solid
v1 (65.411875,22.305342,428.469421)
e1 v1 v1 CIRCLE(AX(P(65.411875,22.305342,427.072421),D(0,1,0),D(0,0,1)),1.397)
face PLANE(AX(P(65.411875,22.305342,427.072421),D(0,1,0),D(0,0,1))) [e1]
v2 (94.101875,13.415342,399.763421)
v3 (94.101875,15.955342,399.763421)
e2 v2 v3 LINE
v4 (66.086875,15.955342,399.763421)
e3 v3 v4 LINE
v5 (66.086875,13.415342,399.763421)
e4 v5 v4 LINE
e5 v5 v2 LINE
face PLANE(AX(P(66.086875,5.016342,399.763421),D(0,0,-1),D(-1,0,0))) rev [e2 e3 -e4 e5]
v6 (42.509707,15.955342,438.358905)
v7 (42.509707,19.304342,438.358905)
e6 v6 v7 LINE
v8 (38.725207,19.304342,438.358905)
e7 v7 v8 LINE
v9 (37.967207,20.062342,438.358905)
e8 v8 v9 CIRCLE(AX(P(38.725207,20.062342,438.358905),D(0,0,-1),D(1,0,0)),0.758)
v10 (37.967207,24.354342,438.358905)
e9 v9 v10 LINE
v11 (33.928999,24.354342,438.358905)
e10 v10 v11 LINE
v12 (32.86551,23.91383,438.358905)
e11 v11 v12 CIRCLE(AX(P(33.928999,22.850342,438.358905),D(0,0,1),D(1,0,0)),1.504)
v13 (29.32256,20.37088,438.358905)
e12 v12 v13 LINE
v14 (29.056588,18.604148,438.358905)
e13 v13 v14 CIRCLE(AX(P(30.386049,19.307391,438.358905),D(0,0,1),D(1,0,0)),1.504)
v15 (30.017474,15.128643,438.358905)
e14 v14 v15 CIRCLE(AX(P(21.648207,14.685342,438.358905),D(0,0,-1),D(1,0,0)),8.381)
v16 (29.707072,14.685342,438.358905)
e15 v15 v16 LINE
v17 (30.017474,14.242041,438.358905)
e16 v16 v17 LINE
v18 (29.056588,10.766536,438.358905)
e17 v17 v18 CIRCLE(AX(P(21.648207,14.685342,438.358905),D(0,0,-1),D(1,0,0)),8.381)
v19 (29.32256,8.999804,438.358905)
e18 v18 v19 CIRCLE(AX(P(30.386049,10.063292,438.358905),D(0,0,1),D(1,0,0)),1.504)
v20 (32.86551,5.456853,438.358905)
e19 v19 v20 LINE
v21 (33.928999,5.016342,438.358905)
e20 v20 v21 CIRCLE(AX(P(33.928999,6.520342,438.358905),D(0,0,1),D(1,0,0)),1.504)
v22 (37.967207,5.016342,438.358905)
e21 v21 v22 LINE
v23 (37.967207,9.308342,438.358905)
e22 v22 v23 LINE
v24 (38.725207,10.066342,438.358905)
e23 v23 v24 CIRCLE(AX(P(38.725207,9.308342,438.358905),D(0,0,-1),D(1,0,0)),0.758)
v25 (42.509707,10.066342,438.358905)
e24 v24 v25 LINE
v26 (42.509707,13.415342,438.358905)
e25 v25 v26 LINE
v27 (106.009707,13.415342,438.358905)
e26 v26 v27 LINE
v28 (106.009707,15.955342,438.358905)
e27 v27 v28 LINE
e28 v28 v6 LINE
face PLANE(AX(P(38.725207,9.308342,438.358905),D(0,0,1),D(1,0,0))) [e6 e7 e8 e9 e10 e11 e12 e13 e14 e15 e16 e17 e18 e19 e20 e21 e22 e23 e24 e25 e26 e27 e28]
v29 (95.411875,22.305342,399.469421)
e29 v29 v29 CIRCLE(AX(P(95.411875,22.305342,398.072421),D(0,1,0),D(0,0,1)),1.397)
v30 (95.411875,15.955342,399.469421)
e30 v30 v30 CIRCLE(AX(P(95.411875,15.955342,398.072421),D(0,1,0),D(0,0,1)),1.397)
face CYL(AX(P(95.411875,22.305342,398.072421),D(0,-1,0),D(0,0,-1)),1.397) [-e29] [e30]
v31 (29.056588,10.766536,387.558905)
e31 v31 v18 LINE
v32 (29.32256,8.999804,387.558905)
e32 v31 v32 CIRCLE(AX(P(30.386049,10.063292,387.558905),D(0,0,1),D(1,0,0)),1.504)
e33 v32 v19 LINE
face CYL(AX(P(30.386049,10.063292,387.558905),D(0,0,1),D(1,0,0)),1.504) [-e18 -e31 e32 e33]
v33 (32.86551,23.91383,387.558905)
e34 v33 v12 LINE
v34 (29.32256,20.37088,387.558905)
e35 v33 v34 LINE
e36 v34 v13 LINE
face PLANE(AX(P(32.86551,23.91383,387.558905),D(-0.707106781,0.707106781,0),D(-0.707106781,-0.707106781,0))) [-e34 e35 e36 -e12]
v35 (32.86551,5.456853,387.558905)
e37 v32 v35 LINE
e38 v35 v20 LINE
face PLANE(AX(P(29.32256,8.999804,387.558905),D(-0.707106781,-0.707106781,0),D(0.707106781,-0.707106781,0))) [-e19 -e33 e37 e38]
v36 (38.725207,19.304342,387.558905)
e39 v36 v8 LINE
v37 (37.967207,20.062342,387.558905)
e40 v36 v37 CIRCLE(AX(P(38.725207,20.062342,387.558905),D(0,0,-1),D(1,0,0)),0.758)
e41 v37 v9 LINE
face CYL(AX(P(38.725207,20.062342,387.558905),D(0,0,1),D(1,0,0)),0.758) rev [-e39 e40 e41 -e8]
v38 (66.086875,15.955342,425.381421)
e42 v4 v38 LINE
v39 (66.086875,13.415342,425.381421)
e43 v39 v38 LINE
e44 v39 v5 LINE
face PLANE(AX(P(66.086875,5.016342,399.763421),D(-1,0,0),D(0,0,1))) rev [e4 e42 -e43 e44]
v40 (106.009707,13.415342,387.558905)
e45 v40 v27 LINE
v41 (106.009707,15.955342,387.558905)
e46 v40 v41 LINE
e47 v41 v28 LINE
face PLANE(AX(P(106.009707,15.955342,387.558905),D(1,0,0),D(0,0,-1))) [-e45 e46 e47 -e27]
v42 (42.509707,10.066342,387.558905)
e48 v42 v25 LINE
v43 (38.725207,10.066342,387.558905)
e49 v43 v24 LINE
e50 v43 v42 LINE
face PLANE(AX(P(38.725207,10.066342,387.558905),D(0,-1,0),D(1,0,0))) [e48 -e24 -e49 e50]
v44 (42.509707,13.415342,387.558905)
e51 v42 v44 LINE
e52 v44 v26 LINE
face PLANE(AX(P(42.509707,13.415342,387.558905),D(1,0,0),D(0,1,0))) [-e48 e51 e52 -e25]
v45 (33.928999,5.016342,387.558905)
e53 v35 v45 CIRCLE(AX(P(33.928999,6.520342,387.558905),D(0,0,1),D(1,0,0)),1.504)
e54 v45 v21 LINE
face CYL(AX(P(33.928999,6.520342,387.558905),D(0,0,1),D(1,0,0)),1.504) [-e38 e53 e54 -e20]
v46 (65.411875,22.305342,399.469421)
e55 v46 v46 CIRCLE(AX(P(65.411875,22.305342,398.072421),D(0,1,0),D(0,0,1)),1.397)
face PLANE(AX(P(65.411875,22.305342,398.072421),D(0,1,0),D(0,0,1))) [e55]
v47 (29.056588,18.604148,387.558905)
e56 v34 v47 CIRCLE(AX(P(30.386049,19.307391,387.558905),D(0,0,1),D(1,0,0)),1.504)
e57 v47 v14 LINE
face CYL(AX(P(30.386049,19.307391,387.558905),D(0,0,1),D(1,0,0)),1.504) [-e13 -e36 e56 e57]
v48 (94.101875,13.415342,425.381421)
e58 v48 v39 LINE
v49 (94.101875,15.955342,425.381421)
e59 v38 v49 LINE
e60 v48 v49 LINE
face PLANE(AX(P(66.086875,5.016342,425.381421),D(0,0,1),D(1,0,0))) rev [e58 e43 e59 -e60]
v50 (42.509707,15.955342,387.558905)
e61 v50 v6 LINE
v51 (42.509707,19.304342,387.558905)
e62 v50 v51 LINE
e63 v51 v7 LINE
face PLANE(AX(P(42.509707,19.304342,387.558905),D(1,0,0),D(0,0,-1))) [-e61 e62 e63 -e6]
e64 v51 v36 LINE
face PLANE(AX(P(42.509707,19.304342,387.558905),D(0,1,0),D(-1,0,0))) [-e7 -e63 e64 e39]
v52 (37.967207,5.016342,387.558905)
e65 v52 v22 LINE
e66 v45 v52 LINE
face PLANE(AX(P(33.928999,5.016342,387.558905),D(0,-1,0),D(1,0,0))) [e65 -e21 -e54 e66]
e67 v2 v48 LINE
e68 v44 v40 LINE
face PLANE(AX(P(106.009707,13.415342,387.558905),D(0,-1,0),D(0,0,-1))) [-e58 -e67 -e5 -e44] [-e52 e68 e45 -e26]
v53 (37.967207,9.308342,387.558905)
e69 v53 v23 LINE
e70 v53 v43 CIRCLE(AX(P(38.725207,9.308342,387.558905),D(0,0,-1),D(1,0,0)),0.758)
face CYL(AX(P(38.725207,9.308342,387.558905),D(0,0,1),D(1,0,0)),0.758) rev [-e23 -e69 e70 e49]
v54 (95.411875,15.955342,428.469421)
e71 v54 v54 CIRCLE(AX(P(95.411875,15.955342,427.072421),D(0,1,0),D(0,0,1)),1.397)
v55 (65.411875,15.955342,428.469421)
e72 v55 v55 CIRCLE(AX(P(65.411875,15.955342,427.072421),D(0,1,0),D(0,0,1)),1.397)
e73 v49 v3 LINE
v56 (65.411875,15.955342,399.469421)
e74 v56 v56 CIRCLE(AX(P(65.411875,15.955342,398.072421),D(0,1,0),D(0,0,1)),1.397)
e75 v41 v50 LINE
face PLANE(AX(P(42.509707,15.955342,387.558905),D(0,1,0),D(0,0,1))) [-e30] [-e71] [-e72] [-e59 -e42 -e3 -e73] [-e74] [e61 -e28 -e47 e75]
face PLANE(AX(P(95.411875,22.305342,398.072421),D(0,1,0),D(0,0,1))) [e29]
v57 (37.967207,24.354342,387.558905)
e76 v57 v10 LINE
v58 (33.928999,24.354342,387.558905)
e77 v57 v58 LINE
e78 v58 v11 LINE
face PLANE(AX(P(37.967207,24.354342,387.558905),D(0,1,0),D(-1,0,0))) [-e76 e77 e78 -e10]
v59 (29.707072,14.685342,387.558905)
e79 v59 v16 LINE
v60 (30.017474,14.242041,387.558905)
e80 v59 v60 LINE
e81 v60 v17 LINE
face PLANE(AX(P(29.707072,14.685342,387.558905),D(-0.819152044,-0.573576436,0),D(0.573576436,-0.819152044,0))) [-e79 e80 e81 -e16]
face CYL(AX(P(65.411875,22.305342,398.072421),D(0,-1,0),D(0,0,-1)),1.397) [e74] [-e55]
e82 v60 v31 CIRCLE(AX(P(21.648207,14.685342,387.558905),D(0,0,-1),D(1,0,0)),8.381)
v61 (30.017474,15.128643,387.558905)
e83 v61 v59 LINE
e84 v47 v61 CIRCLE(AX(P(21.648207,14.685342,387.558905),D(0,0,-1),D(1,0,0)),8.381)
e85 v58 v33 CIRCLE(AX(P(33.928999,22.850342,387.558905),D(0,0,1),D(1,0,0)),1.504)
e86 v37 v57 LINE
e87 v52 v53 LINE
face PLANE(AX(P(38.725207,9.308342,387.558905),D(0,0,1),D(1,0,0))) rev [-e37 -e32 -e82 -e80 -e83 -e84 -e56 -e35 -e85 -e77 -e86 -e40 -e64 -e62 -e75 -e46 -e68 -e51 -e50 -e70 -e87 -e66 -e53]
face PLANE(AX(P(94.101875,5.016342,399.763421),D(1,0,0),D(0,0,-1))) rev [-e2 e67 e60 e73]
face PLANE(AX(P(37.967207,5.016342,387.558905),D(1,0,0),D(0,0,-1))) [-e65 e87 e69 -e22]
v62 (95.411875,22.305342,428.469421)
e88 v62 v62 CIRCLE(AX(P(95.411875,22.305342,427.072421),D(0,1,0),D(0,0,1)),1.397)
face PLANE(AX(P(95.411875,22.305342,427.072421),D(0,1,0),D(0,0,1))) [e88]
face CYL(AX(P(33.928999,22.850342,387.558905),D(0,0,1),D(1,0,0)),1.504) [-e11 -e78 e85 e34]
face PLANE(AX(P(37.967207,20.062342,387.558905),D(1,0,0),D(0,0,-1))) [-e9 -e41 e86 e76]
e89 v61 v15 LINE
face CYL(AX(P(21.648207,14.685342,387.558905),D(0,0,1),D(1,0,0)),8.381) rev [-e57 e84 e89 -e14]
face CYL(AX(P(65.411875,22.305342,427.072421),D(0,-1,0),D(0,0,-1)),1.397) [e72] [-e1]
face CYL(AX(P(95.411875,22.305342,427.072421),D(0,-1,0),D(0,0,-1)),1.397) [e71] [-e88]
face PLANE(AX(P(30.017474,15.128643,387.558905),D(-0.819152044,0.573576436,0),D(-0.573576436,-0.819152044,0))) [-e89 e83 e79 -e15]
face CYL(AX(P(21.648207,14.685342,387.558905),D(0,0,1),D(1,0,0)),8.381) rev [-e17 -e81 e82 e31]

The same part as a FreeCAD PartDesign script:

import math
import FreeCAD as App
import Part
import Sketcher
from FreeCAD import Vector
Q = App.Units.Quantity


def add_polygon(sketch, points):
    """Adds a closed chain of lines whose ends are joined by coincident constraints."""
    first, n = sketch.GeometryCount, len(points)
    for a, b in zip(points, points[1:] + points[:1]):
        sketch.addGeometry(Part.LineSegment(App.Vector(*a, 0), App.Vector(*b, 0)), False)
    for i in range(n):
        sketch.addConstraint(Sketcher.Constraint("Coincident", first + i, 2, first + (i + 1) % n, 1))

doc = App.newDocument("Part")
params = doc.addObject("Spreadsheet::Sheet", "Params")
for row, (alias, value) in enumerate([
    ("sketch1_width", "2.5 in"),
    ("sketch1_height", "0.1 in"),
    ("pad1_length", "2 in"),
    ("sketch2_diameter", "0.11 in"),
    ("pad2_length", "0.25 in"),
], start=1):
    params.set(f"A{row}", alias)
    params.set(f"B{row}", "=" + value)
    params.setAlias(f"B{row}", alias)

body = doc.addObject("PartDesign::Body", "Body")

sketch1 = body.newObject("Sketcher::SketchObject", "Sketch")
sketch1.AttachmentSupport = (doc.getObject("XY_Plane"), [""])
sketch1.MapMode = "FlatFace"
sketch1.AttachmentOffset = App.Placement(Vector(0, 0, 438.358905), App.Rotation())
sketch1.addGeometry([
    Part.LineSegment(Vector(42.509707, 15.955342, 0), Vector(42.509707, 19.304342, 0)),
    Part.LineSegment(Vector(42.509707, 19.304342, 0), Vector(38.725207, 19.304342, 0)),
    Part.ArcOfCircle(Part.Circle(Vector(38.725207, 20.062342, 0), Vector(0, 0, 1), 0.758), math.radians(180), math.radians(270)),
    Part.LineSegment(Vector(37.967207, 20.062342, 0), Vector(37.967207, 24.354342, 0)),
    Part.LineSegment(Vector(37.967207, 24.354342, 0), Vector(33.928999, 24.354342, 0)),
    Part.ArcOfCircle(Part.Circle(Vector(33.928999, 22.850342, 0), Vector(0, 0, 1), 1.504), math.radians(90), math.radians(135)),
    Part.LineSegment(Vector(32.86551, 23.91383, 0), Vector(29.32256, 20.37088, 0)),
    Part.ArcOfCircle(Part.Circle(Vector(30.386049, 19.307391, 0), Vector(0, 0, 1), 1.504), math.radians(135), math.radians(207.877462)),
    Part.ArcOfCircle(Part.Circle(Vector(21.648206, 14.685342, 0), Vector(0, 0, 1), 8.381), math.radians(3.031994), math.radians(27.877462)),
    Part.LineSegment(Vector(30.017474, 15.128643, 0), Vector(29.707072, 14.685342, 0)),
    Part.LineSegment(Vector(29.707072, 14.685342, 0), Vector(30.017474, 14.242041, 0)),
    Part.ArcOfCircle(Part.Circle(Vector(21.648206, 14.685342, 0), Vector(0, 0, 1), 8.381), math.radians(-27.877462), math.radians(-3.031994)),
    Part.ArcOfCircle(Part.Circle(Vector(30.386049, 10.063292, 0), Vector(0, 0, 1), 1.504), math.radians(152.122538), math.radians(225)),
    Part.LineSegment(Vector(29.32256, 8.999804, 0), Vector(32.86551, 5.456853, 0)),
    Part.ArcOfCircle(Part.Circle(Vector(33.928999, 6.520342, 0), Vector(0, 0, 1), 1.504), math.radians(-135), math.radians(-90)),
    Part.LineSegment(Vector(33.928999, 5.016342, 0), Vector(37.967207, 5.016342, 0)),
    Part.LineSegment(Vector(37.967207, 5.016342, 0), Vector(37.967207, 9.308342, 0)),
    Part.ArcOfCircle(Part.Circle(Vector(38.725207, 9.308342, 0), Vector(0, 0, 1), 0.758), math.radians(90), math.radians(180)),
    Part.LineSegment(Vector(38.725207, 10.066342, 0), Vector(42.509707, 10.066342, 0)),
    Part.LineSegment(Vector(42.509707, 10.066342, 0), Vector(42.509707, 13.415342, 0)),
    Part.LineSegment(Vector(42.509707, 13.415342, 0), Vector(106.009707, 13.415342, 0)),
    Part.LineSegment(Vector(106.009707, 13.415342, 0), Vector(106.009707, 15.955342, 0)),
    Part.LineSegment(Vector(106.009707, 15.955342, 0), Vector(42.509707, 15.955342, 0)),
], False)
sketch1.addConstraint([
    Sketcher.Constraint("Coincident", 0, 2, 1, 1),
    Sketcher.Constraint("Tangent", 1, 2, 2, 2),
    Sketcher.Constraint("Tangent", 2, 1, 3, 1),
    Sketcher.Constraint("Coincident", 3, 2, 4, 1),
    Sketcher.Constraint("Tangent", 4, 2, 5, 1),
    Sketcher.Constraint("Tangent", 5, 2, 6, 1),
    Sketcher.Constraint("Tangent", 6, 2, 7, 1),
    Sketcher.Constraint("Tangent", 7, 2, 8, 2),
    Sketcher.Constraint("Coincident", 8, 1, 9, 1),
    Sketcher.Constraint("Coincident", 9, 2, 10, 1),
    Sketcher.Constraint("Coincident", 10, 2, 11, 2),
    Sketcher.Constraint("Tangent", 11, 1, 12, 1),
    Sketcher.Constraint("Tangent", 12, 2, 13, 1),
    Sketcher.Constraint("Tangent", 13, 2, 14, 1),
    Sketcher.Constraint("Tangent", 14, 2, 15, 1),
    Sketcher.Constraint("Coincident", 15, 2, 16, 1),
    Sketcher.Constraint("Tangent", 16, 2, 17, 2),
    Sketcher.Constraint("Tangent", 17, 1, 18, 1),
    Sketcher.Constraint("Coincident", 18, 2, 19, 1),
    Sketcher.Constraint("Coincident", 19, 2, 20, 1),
    Sketcher.Constraint("Coincident", 20, 2, 21, 1),
    Sketcher.Constraint("Coincident", 21, 2, 22, 1),
    Sketcher.Constraint("Coincident", 22, 2, 0, 1),
    Sketcher.Constraint("Vertical", 0),
    Sketcher.Constraint("Horizontal", 1),
    Sketcher.Constraint("Vertical", 3),
    Sketcher.Constraint("Horizontal", 4),
    Sketcher.Constraint("Horizontal", 15),
    Sketcher.Constraint("Vertical", 16),
    Sketcher.Constraint("Horizontal", 18),
    Sketcher.Constraint("Vertical", 19),
    Sketcher.Constraint("Horizontal", 20),
    Sketcher.Constraint("Vertical", 21),
    Sketcher.Constraint("Horizontal", 22),
    Sketcher.Constraint("Coincident", 11, 3, 8, 3),
    Sketcher.Constraint("Equal", 5, 7),
    Sketcher.Constraint("Equal", 8, 11),
    Sketcher.Constraint("Equal", 7, 12),
    Sketcher.Constraint("Equal", 12, 14),
    Sketcher.Constraint("Equal", 2, 17),
    Sketcher.Constraint("Perpendicular", 6, 13),
    Sketcher.Constraint("Horizontal", 11, 3, 9, 2),
    Sketcher.Constraint("Vertical", 7, 3, 12, 3),
    Sketcher.Constraint("Vertical", 5, 3, 14, 3),
    Sketcher.Constraint("Vertical", 2, 3, 17, 3),
    Sketcher.Constraint("Vertical", 8, 1, 10, 2),
    Sketcher.Constraint("Vertical", 6, 2, 12, 2),
    Sketcher.Constraint("Vertical", 0, 2, 18, 2),
    Sketcher.Constraint("Equal", 3, 16),
    Sketcher.Constraint("Equal", 0, 19),
    Sketcher.Constraint("DistanceX", 20, 1, 20, 2, Q("2.5 in")),
    Sketcher.Constraint("DistanceY", 21, 1, 21, 2, Q("0.1 in")),
    Sketcher.Constraint("Angle", 9, Q("-125 deg")),
    Sketcher.Constraint("Radius", 2, Q("0.758 mm")),
    Sketcher.Constraint("Radius", 5, Q("1.504 mm")),
    Sketcher.Constraint("Radius", 8, Q("8.381 mm")),
    Sketcher.Constraint("DistanceX", 1, 2, 1, 1, Q("3.7845 mm")),
    Sketcher.Constraint("DistanceY", 0, 1, 0, 2, Q("3.349 mm")),
    Sketcher.Constraint("DistanceY", 3, 1, 3, 2, Q("4.292 mm")),
    Sketcher.Constraint("DistanceX", -1, 1, 5, 3, Q("33.928999 mm")),
    Sketcher.Constraint("DistanceX", 8, 3, 2, 3, Q("17.077 mm")),
    Sketcher.Constraint("DistanceY", 12, 3, 7, 3, Q("9.244099 mm")),
    Sketcher.Constraint("DistanceY", 11, 3, 8, 1, Q("0.443301 mm")),
    Sketcher.Constraint("DistanceY", -1, 1, 2, 3, Q("20.062342 mm")),
])
sketch1.setExpression("Constraints[50]", "Params.sketch1_width")
sketch1.setExpression("Constraints[51]", "Params.sketch1_height")
pad1 = body.newObject("PartDesign::Pad", "Pad")
pad1.Profile = sketch1
pad1.setExpression("Length", "Params.pad1_length")
pad1.Reversed = True

sketch2 = body.newObject("Sketcher::SketchObject", "Sketch001")
sketch2.AttachmentSupport = (doc.getObject("XZ_Plane"), [""])
sketch2.MapMode = "FlatFace"
sketch2.AttachmentOffset = App.Placement(Vector(0, 0, -15.955342), App.Rotation())
sketch2.addGeometry([
    Part.Circle(Vector(65.411875, 398.072421, 0), Vector(0, 0, 1), 1.397),
    Part.Circle(Vector(95.411875, 398.072421, 0), Vector(0, 0, 1), 1.397),
    Part.Circle(Vector(95.411875, 427.072421, 0), Vector(0, 0, 1), 1.397),
    Part.Circle(Vector(65.411875, 427.072421, 0), Vector(0, 0, 1), 1.397),
], False)
sketch2.addConstraint([
    Sketcher.Constraint("Equal", 0, 1),
    Sketcher.Constraint("Equal", 1, 2),
    Sketcher.Constraint("Equal", 2, 3),
    Sketcher.Constraint("Horizontal", 0, 3, 1, 3),
    Sketcher.Constraint("Horizontal", 2, 3, 3, 3),
    Sketcher.Constraint("Vertical", 1, 3, 2, 3),
    Sketcher.Constraint("Vertical", 0, 3, 3, 3),
    Sketcher.Constraint("Diameter", 0, Q("0.11 in")),
    Sketcher.Constraint("DistanceX", 0, 3, 1, 3, Q("30 mm")),
    Sketcher.Constraint("DistanceY", 1, 3, 2, 3, Q("29 mm")),
    Sketcher.Constraint("DistanceY", -1, 1, 0, 3, Q("398.072421 mm")),
    Sketcher.Constraint("DistanceX", -1, 1, 0, 3, Q("65.411875 mm")),
])
sketch2.setExpression("Constraints[7]", "Params.sketch2_diameter")
pad2 = body.newObject("PartDesign::Pad", "Pad001")
pad2.Profile = sketch2
pad2.setExpression("Length", "Params.pad2_length")
pad2.Reversed = True

sketch3 = body.newObject("Sketcher::SketchObject", "Sketch002")
sketch3.AttachmentSupport = (doc.getObject("XZ_Plane"), [""])
sketch3.MapMode = "FlatFace"
sketch3.AttachmentOffset = App.Placement(Vector(0, 0, -15.955342), App.Rotation())
add_polygon(sketch3, [(66.086875, 399.763421), (66.086875, 425.381421), (94.101875, 425.381421), (94.101875, 399.763421)])
sketch3.addConstraint([
    Sketcher.Constraint("Vertical", 0),
    Sketcher.Constraint("Horizontal", 1),
    Sketcher.Constraint("Vertical", 2),
    Sketcher.Constraint("Horizontal", 3),
    Sketcher.Constraint("DistanceX", 1, 1, 1, 2, Q("28.015 mm")),
    Sketcher.Constraint("DistanceY", 0, 1, 0, 2, Q("25.618 mm")),
    Sketcher.Constraint("DistanceY", -1, 1, 0, 2, Q("16.7473001 in")),
    Sketcher.Constraint("DistanceX", -1, 1, 0, 2, Q("66.086875 mm")),
])
pocket1 = body.newObject("PartDesign::Pocket", "Pocket")
pocket1.Profile = sketch3
pocket1.Type = "ThroughAll"
pocket1.Reversed = True

doc.recompute()
